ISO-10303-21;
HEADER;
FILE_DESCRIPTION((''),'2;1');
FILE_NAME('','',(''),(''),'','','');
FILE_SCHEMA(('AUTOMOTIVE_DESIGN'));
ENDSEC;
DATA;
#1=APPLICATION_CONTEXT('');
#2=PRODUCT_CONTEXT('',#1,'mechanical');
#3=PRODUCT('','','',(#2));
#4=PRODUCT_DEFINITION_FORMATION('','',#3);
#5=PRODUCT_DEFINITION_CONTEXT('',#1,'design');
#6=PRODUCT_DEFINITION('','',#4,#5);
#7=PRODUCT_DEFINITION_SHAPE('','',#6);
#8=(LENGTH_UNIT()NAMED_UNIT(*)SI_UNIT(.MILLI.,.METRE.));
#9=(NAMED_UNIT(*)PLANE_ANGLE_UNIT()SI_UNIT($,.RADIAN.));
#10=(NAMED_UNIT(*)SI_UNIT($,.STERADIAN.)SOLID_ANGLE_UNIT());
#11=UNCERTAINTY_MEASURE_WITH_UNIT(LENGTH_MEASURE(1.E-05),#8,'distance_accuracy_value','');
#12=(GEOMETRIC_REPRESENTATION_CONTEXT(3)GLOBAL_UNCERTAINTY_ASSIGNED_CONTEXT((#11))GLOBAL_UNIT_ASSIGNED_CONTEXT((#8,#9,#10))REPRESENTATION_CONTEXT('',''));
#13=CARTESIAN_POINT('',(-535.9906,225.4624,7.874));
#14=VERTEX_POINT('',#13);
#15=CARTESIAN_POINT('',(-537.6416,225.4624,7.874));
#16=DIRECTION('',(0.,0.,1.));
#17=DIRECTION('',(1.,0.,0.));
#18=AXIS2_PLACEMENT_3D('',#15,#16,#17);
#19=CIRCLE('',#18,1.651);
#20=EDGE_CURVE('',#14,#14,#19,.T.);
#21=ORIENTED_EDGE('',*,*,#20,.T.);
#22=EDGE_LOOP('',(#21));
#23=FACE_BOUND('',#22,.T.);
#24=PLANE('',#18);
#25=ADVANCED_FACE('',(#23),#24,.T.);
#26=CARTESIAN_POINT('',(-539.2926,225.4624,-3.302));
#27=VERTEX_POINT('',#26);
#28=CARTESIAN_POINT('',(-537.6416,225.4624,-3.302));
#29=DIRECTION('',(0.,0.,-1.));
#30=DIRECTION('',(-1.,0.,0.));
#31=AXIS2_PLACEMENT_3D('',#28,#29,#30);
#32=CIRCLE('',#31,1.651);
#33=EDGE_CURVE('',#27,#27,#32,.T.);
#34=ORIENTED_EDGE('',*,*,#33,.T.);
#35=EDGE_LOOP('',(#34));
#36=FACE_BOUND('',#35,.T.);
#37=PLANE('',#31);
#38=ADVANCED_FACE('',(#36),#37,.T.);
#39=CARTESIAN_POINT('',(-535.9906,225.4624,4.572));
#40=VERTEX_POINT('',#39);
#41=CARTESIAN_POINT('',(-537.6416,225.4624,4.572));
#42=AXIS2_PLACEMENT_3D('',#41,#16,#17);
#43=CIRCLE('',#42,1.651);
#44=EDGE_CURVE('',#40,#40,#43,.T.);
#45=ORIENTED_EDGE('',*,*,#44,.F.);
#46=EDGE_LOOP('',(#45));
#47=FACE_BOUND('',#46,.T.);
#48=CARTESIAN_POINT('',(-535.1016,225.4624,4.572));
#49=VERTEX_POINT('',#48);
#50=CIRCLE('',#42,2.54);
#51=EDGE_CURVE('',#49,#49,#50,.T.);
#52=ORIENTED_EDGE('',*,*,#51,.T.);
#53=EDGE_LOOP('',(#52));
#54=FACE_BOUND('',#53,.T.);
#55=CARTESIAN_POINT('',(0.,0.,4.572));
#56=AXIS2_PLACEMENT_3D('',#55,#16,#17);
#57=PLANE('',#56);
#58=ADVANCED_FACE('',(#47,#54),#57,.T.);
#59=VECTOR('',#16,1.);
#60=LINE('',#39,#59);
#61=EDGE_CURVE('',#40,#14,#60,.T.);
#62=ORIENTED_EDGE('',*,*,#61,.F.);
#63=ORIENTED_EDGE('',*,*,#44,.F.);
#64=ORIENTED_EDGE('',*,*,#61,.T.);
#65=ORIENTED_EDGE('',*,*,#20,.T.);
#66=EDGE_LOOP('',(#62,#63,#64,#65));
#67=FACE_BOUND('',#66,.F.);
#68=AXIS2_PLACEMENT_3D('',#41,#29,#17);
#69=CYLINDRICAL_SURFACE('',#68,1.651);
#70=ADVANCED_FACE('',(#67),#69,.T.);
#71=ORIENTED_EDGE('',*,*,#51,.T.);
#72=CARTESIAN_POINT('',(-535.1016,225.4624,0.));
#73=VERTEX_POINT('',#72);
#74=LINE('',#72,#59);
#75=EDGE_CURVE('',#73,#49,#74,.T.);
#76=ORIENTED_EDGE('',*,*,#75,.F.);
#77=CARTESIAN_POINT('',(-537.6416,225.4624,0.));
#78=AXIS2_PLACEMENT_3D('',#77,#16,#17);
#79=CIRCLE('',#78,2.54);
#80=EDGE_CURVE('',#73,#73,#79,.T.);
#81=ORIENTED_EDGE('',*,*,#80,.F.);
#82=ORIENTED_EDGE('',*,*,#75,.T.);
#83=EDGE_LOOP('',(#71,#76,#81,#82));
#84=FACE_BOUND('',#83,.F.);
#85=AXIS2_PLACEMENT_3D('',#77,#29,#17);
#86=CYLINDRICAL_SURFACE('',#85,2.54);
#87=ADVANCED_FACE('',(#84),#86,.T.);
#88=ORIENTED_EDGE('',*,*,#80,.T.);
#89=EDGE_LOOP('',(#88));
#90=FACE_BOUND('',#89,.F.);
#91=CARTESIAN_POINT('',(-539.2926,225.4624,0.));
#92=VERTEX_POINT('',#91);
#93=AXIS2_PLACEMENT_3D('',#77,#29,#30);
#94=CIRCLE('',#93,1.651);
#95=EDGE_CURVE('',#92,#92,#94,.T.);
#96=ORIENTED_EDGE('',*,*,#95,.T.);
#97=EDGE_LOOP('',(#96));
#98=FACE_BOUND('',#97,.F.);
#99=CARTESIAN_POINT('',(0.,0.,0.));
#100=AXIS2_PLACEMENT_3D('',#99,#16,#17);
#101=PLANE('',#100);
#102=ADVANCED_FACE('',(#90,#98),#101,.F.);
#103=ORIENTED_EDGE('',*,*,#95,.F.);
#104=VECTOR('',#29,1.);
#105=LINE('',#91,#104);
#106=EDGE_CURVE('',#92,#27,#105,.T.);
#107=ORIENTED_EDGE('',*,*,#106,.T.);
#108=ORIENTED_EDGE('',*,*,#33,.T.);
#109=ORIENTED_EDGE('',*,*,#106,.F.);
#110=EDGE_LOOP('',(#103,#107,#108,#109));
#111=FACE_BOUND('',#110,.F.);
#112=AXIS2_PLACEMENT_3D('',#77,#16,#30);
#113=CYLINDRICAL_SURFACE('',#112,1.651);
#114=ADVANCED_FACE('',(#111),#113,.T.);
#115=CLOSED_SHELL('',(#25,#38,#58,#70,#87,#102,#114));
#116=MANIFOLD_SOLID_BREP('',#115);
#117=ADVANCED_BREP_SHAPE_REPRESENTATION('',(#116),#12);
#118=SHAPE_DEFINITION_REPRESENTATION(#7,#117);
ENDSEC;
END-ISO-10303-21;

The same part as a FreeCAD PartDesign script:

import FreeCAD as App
import Part
import Sketcher
from FreeCAD import Vector
Q = App.Units.Quantity

doc = App.newDocument("Part")
body = doc.addObject("PartDesign::Body", "Body")

# Sketch on XY plane
sketch1 = body.newObject("Sketcher::SketchObject", "Sketch")
sketch1.AttachmentSupport = (doc.getObject("XY_Plane"), [""])
sketch1.MapMode = "FlatFace"
sketch1.addGeometry(Part.Circle(Vector(-537.6, 225.5, 0), Vector(0, 0, 1), 2.5), False)
sketch1.addConstraint([
    Sketcher.Constraint("Diameter", 0, Q("0.2 in")),
    Sketcher.Constraint("DistanceX", 0, 3, -1, 1, Q("21.167 in")),
    Sketcher.Constraint("DistanceY", -1, 1, 0, 3, Q("225.4624 mm")),
])
pad1 = body.newObject("PartDesign::Pad", "Pad")
pad1.Profile = sketch1
pad1.Length = Q("0.18 in")

# Sketch on XY plane
sketch2 = body.newObject("Sketcher::SketchObject", "Sketch001")
sketch2.AttachmentSupport = (doc.getObject("XY_Plane"), [""])
sketch2.MapMode = "FlatFace"
sketch2.AttachmentOffset = App.Placement(Vector(0, 0, 0.18 * 25.4), App.Rotation())
sketch2.addGeometry(Part.Circle(Vector(-537.6, 225.5, 0), Vector(0, 0, 1), 1.7), False)
sketch2.addConstraint([
    Sketcher.Constraint("Diameter", 0, Q("0.13 in")),
    Sketcher.Constraint("DistanceX", 0, 3, -1, 1, Q("21.167 in")),
    Sketcher.Constraint("DistanceY", -1, 1, 0, 3, Q("225.4624 mm")),
])
pad2 = body.newObject("PartDesign::Pad", "Pad001")
pad2.Profile = sketch2
pad2.Length = Q("0.13 in")

# Sketch on XY plane
sketch3 = body.newObject("Sketcher::SketchObject", "Sketch002")
sketch3.AttachmentSupport = (doc.getObject("XY_Plane"), [""])
sketch3.MapMode = "FlatFace"
sketch3.addGeometry(Part.Circle(Vector(-537.6, 225.5, 0), Vector(0, 0, 1), 1.7), False)
sketch3.addConstraint([
    Sketcher.Constraint("Diameter", 0, Q("0.13 in")),
    Sketcher.Constraint("DistanceX", 0, 3, -1, 1, Q("21.167 in")),
    Sketcher.Constraint("DistanceY", -1, 1, 0, 3, Q("225.4624 mm")),
])
pad3 = body.newObject("PartDesign::Pad", "Pad002")
pad3.Profile = sketch3
pad3.Length = Q("0.13 in")
pad3.Reversed = True

doc.recompute()
